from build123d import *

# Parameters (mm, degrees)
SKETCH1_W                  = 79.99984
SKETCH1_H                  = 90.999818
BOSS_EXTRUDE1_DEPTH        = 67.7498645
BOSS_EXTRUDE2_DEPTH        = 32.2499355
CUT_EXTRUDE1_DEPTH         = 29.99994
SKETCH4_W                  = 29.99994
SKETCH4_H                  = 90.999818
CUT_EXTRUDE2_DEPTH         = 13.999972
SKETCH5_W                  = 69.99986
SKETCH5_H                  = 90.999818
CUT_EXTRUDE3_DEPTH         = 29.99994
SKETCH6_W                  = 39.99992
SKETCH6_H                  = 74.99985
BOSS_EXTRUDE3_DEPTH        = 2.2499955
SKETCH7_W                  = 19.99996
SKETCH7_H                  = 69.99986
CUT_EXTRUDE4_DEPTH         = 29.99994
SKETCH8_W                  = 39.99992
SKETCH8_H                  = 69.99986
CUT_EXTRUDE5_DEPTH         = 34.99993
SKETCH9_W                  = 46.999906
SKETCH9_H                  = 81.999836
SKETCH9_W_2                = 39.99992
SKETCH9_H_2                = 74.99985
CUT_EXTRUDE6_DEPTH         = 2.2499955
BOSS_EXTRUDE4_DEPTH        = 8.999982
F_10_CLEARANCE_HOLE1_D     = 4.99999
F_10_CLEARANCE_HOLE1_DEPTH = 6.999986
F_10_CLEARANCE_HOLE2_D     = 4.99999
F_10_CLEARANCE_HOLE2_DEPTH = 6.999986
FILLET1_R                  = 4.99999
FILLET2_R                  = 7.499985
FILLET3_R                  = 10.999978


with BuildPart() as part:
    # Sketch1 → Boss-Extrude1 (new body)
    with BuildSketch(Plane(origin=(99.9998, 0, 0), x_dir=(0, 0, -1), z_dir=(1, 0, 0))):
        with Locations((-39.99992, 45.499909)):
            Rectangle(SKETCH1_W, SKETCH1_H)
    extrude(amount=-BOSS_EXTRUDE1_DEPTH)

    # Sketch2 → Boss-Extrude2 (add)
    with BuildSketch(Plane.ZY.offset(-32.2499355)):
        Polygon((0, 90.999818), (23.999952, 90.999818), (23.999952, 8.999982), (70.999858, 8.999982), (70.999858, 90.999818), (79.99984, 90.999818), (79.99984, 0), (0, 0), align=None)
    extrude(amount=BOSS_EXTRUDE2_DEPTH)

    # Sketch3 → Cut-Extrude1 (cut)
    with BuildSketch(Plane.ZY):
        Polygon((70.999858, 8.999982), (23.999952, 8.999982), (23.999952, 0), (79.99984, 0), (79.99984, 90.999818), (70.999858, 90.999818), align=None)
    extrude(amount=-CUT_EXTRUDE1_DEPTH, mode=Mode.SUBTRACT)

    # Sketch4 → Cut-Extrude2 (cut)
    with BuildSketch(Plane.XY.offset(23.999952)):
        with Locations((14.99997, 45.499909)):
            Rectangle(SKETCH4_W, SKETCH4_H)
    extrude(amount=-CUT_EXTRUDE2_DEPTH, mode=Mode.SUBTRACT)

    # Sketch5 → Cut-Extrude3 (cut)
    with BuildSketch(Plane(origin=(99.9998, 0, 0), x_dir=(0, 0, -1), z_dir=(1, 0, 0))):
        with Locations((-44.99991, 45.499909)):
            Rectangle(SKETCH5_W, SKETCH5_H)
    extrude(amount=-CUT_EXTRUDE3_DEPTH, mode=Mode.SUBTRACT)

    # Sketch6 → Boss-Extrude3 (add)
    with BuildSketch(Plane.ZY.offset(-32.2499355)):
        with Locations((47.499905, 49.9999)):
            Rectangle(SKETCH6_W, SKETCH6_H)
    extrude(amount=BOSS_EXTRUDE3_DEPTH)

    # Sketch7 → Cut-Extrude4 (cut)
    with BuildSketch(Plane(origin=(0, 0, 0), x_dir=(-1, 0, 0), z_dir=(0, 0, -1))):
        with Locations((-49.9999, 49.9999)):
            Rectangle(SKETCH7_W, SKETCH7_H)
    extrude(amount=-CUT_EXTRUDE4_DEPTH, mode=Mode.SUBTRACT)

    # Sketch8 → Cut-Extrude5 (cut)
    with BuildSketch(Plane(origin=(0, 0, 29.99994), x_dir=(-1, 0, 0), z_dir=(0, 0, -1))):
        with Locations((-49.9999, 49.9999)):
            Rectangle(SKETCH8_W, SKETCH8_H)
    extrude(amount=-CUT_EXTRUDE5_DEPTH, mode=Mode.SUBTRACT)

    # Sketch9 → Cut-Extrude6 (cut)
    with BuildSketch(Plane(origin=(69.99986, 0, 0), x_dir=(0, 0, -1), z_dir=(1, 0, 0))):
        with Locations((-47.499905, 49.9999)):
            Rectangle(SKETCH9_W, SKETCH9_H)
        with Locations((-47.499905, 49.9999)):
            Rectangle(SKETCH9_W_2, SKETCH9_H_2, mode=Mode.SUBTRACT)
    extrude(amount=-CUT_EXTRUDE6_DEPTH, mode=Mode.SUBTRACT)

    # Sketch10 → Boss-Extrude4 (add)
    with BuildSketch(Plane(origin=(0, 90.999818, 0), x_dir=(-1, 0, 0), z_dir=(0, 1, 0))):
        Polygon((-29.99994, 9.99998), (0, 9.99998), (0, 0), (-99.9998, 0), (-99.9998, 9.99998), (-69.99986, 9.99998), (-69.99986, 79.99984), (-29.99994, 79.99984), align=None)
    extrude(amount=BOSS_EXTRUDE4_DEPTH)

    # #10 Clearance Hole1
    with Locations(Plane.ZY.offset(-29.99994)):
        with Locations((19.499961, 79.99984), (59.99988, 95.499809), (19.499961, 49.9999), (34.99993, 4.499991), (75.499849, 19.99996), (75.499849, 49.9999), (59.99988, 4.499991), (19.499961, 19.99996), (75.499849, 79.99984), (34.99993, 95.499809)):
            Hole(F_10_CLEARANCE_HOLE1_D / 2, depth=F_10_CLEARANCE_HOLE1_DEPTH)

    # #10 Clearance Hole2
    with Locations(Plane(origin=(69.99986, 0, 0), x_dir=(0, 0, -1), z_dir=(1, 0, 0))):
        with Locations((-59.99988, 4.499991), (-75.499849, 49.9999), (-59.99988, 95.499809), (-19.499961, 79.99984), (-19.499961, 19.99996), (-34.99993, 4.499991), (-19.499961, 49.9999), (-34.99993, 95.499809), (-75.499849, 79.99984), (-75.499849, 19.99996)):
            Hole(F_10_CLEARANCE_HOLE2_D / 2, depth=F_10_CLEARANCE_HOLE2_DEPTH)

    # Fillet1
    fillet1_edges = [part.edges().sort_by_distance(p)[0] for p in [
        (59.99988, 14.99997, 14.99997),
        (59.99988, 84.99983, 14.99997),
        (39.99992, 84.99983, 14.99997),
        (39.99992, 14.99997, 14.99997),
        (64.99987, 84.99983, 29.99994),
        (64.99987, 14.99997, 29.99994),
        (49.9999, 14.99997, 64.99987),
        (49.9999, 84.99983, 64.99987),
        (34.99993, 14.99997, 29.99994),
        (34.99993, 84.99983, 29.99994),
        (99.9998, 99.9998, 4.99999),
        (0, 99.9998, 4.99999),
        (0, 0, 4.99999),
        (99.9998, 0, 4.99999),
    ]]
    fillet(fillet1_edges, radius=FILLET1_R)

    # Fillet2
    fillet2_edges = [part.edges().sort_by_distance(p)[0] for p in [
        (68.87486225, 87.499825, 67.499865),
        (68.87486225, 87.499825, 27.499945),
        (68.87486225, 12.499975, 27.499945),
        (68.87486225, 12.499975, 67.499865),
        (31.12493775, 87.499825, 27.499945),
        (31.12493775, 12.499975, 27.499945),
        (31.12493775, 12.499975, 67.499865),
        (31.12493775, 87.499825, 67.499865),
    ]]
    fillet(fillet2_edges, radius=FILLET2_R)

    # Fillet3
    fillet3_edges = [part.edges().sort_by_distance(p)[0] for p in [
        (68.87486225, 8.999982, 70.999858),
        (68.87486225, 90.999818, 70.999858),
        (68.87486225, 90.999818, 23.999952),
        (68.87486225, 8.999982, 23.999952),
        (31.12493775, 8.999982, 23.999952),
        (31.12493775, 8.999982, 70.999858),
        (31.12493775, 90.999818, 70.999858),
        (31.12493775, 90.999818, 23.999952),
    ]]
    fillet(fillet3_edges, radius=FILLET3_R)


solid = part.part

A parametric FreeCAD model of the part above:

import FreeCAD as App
import Part
import Sketcher
Q = App.Units.Quantity


def edges_at(feature, points):
    """Names of the edges that pass closest to the given points."""
    edges = feature.Shape.Edges
    near = lambda p: min(range(len(edges)), key=lambda i: edges[i].distToShape(Part.Vertex(*p))[0])
    return sorted({f"Edge{near(p) + 1}" for p in points})


def add_polygon(sketch, points):
    """Adds a closed chain of lines whose ends are joined by coincident constraints."""
    first, n = sketch.GeometryCount, len(points)
    for a, b in zip(points, points[1:] + points[:1]):
        sketch.addGeometry(Part.LineSegment(App.Vector(*a, 0), App.Vector(*b, 0)), False)
    for i in range(n):
        sketch.addConstraint(Sketcher.Constraint("Coincident", first + i, 2, first + (i + 1) % n, 1))

doc = App.newDocument("Part")
body = doc.addObject("PartDesign::Body", "Body")

# Sketch on YZ plane
sketch1 = doc.addObject("Sketcher::SketchObject", "Sketch")
body.addObject(sketch1)
sketch1.AttachmentSupport = (doc.YZ_Plane, [""])
sketch1.MapMode = "FlatFace"
sketch1.AttachmentOffset = App.Placement(App.Vector(0, 0, 3.937 * 25.4), App.Rotation())
add_polygon(sketch1, [(91, 80), (0, 80), (0, 0), (91, 0)])  # lines 0-3
sketch1.addConstraint(Sketcher.Constraint("Horizontal", 0))
sketch1.addConstraint(Sketcher.Constraint("Vertical", 1))
sketch1.addConstraint(Sketcher.Constraint("Horizontal", 2))
sketch1.addConstraint(Sketcher.Constraint("Vertical", 3))
sketch1.addConstraint(Sketcher.Constraint("Coincident", 1, 2, -1, 1))
sketch1.addConstraint(Sketcher.Constraint("DistanceY", 1, 2, 1, 1, Q("3.1496 in")))
sketch1.addConstraint(Sketcher.Constraint("DistanceX", 0, 2, 0, 1, Q("90.999818 mm")))
pad1 = doc.addObject("PartDesign::Pad", "Pad")
body.addObject(pad1)
pad1.Profile = sketch1
pad1.Length = 67.749865
pad1.Reversed = True

# Sketch on YZ plane
sketch2 = doc.addObject("Sketcher::SketchObject", "Sketch001")
body.addObject(sketch2)
sketch2.AttachmentSupport = (doc.YZ_Plane, [""])
sketch2.MapMode = "FlatFace"
sketch2.AttachmentOffset = App.Placement(App.Vector(0, 0, 32.249935), App.Rotation())
add_polygon(sketch2, [(91, 24), (91, 0), (0, 0), (0, 80), (91, 80), (91, 71), (9, 71), (9, 24)])  # lines 0-7
sketch2.addConstraint(Sketcher.Constraint("Vertical", 0))
sketch2.addConstraint(Sketcher.Constraint("Horizontal", 1))
sketch2.addConstraint(Sketcher.Constraint("Vertical", 2))
sketch2.addConstraint(Sketcher.Constraint("Horizontal", 3))
sketch2.addConstraint(Sketcher.Constraint("Vertical", 4))
sketch2.addConstraint(Sketcher.Constraint("Horizontal", 5))
sketch2.addConstraint(Sketcher.Constraint("Vertical", 6))
sketch2.addConstraint(Sketcher.Constraint("Horizontal", 7))
sketch2.addConstraint(Sketcher.Constraint("Coincident", 1, 2, -1, 1))
sketch2.addConstraint(Sketcher.Constraint("Vertical", 0, 2, 3, 2))
sketch2.addConstraint(Sketcher.Constraint("DistanceY", 2, 1, 2, 2, Q("3.1496 in")))
sketch2.addConstraint(Sketcher.Constraint("DistanceX", 1, 2, 1, 1, Q("90.999818 mm")))
sketch2.addConstraint(Sketcher.Constraint("DistanceX", 5, 2, 5, 1, Q("81.999836 mm")))
sketch2.addConstraint(Sketcher.Constraint("DistanceY", 0, 2, 0, 1, Q("23.999952 mm")))
sketch2.addConstraint(Sketcher.Constraint("DistanceY", 4, 2, 4, 1, Q("8.999982 mm")))
pad2 = doc.addObject("PartDesign::Pad", "Pad001")
body.addObject(pad2)
pad2.Profile = sketch2
pad2.Length = 32.249935
pad2.Reversed = True

# Sketch on YZ plane
sketch3 = doc.addObject("Sketcher::SketchObject", "Sketch002")
body.addObject(sketch3)
sketch3.AttachmentSupport = (doc.YZ_Plane, [""])
sketch3.MapMode = "FlatFace"
add_polygon(sketch3, [(8.999982, 70.999858), (8.999982, 23.999952), (0, 23.999952), (0, 79.99984), (90.999818, 79.99984), (90.999818, 70.999858)])  # lines 0-5
sketch3.addConstraint(Sketcher.Constraint("Vertical", 0))
sketch3.addConstraint(Sketcher.Constraint("Horizontal", 1))
sketch3.addConstraint(Sketcher.Constraint("Vertical", 2))
sketch3.addConstraint(Sketcher.Constraint("Horizontal", 3))
sketch3.addConstraint(Sketcher.Constraint("Vertical", 4))
sketch3.addConstraint(Sketcher.Constraint("Horizontal", 5))
sketch3.addConstraint(Sketcher.Constraint("PointOnObject", 1, 2, -2))
sketch3.addConstraint(Sketcher.Constraint("Equal", 1, 4))
sketch3.addConstraint(Sketcher.Constraint("DistanceY", -1, 1, 2, 2, Q("3.1496 in")))
sketch3.addConstraint(Sketcher.Constraint("DistanceX", 1, 2, 1, 1, Q("8.999982 mm")))
sketch3.addConstraint(Sketcher.Constraint("DistanceX", 3, 1, 3, 2, Q("90.999818 mm")))
sketch3.addConstraint(Sketcher.Constraint("DistanceY", 2, 1, 2, 2, Q("55.999888 mm")))
pocket1 = doc.addObject("PartDesign::Pocket", "Pocket")
body.addObject(pocket1)
pocket1.Profile = sketch3
pocket1.Length = Q("1.1811 in")
pocket1.Reversed = True

# Sketch on XY plane
sketch4 = doc.addObject("Sketcher::SketchObject", "Sketch003")
body.addObject(sketch4)
sketch4.AttachmentSupport = (doc.XY_Plane, [""])
sketch4.MapMode = "FlatFace"
sketch4.AttachmentOffset = App.Placement(App.Vector(0, 0, 23.999952), App.Rotation())
add_polygon(sketch4, [(0, 91), (0, 0), (30, 0), (30, 91)])  # lines 0-3
sketch4.addConstraint(Sketcher.Constraint("Vertical", 0))
sketch4.addConstraint(Sketcher.Constraint("Horizontal", 1))
sketch4.addConstraint(Sketcher.Constraint("Vertical", 2))
sketch4.addConstraint(Sketcher.Constraint("Horizontal", 3))
sketch4.addConstraint(Sketcher.Constraint("Coincident", 0, 2, -1, 1))
sketch4.addConstraint(Sketcher.Constraint("DistanceX", 1, 1, 1, 2, Q("1.1811 in")))
sketch4.addConstraint(Sketcher.Constraint("DistanceY", 0, 2, 0, 1, Q("90.999818 mm")))
pocket2 = doc.addObject("PartDesign::Pocket", "Pocket001")
body.addObject(pocket2)
pocket2.Profile = sketch4
pocket2.Length = 13.999972

# Sketch on YZ plane
sketch5 = doc.addObject("Sketcher::SketchObject", "Sketch004")
body.addObject(sketch5)
sketch5.AttachmentSupport = (doc.YZ_Plane, [""])
sketch5.MapMode = "FlatFace"
sketch5.AttachmentOffset = App.Placement(App.Vector(0, 0, 3.937 * 25.4), App.Rotation())
add_polygon(sketch5, [(91, 80), (0, 80), (0, 10), (91, 10)])  # lines 0-3
sketch5.addConstraint(Sketcher.Constraint("Horizontal", 0))
sketch5.addConstraint(Sketcher.Constraint("Vertical", 1))
sketch5.addConstraint(Sketcher.Constraint("Horizontal", 2))
sketch5.addConstraint(Sketcher.Constraint("Vertical", 3))
sketch5.addConstraint(Sketcher.Constraint("PointOnObject", 0, 2, -2))
sketch5.addConstraint(Sketcher.Constraint("DistanceY", 1, 2, 1, 1, Q("2.7559 in")))
sketch5.addConstraint(Sketcher.Constraint("DistanceY", -1, 1, 0, 2, Q("3.1496 in")))
sketch5.addConstraint(Sketcher.Constraint("DistanceX", 0, 2, 0, 1, Q("90.999818 mm")))
pocket3 = doc.addObject("PartDesign::Pocket", "Pocket002")
body.addObject(pocket3)
pocket3.Profile = sketch5
pocket3.Length = Q("1.1811 in")

# Sketch on YZ plane
sketch6 = doc.addObject("Sketcher::SketchObject", "Sketch005")
body.addObject(sketch6)
sketch6.AttachmentSupport = (doc.YZ_Plane, [""])
sketch6.MapMode = "FlatFace"
sketch6.AttachmentOffset = App.Placement(App.Vector(0, 0, 32.249935), App.Rotation())
add_polygon(sketch6, [(87, 27), (12, 27), (12, 67), (87, 67)])  # lines 0-3
sketch6.addConstraint(Sketcher.Constraint("Horizontal", 0))
sketch6.addConstraint(Sketcher.Constraint("Vertical", 1))
sketch6.addConstraint(Sketcher.Constraint("Horizontal", 2))
sketch6.addConstraint(Sketcher.Constraint("Vertical", 3))
sketch6.addConstraint(Sketcher.Constraint("DistanceY", 1, 1, 1, 2, Q("1.5748 in")))
sketch6.addConstraint(Sketcher.Constraint("DistanceX", 0, 2, 0, 1, Q("74.99985 mm")))
sketch6.addConstraint(Sketcher.Constraint("DistanceX", -1, 1, 0, 2, Q("12.499975 mm")))
sketch6.addConstraint(Sketcher.Constraint("DistanceY", -1, 1, 0, 2, Q("27.499945 mm")))
pad3 = doc.addObject("PartDesign::Pad", "Pad002")
body.addObject(pad3)
pad3.Profile = sketch6
pad3.Length = 2.249995
pad3.Reversed = True

# Sketch on XY plane
sketch7 = doc.addObject("Sketcher::SketchObject", "Sketch006")
body.addObject(sketch7)
sketch7.AttachmentSupport = (doc.XY_Plane, [""])
sketch7.MapMode = "FlatFace"
add_polygon(sketch7, [(60, 85), (60, 15), (40, 15), (40, 85)])  # lines 0-3
sketch7.addConstraint(Sketcher.Constraint("Vertical", 0))
sketch7.addConstraint(Sketcher.Constraint("Horizontal", 1))
sketch7.addConstraint(Sketcher.Constraint("Vertical", 2))
sketch7.addConstraint(Sketcher.Constraint("Horizontal", 3))
sketch7.addConstraint(Sketcher.Constraint("DistanceX", 1, 2, 1, 1, Q("0.7874 in")))
sketch7.addConstraint(Sketcher.Constraint("DistanceY", 0, 2, 0, 1, Q("2.7559 in")))
sketch7.addConstraint(Sketcher.Constraint("DistanceX", -1, 1, 0, 2, Q("2.3622 in")))
sketch7.addConstraint(Sketcher.Constraint("DistanceY", -1, 1, 0, 2, Q("14.99997 mm")))
pocket4 = doc.addObject("PartDesign::Pocket", "Pocket003")
body.addObject(pocket4)
pocket4.Profile = sketch7
pocket4.Length = Q("1.1811 in")
pocket4.Reversed = True

# Sketch on XY plane
sketch8 = doc.addObject("Sketcher::SketchObject", "Sketch007")
body.addObject(sketch8)
sketch8.AttachmentSupport = (doc.XY_Plane, [""])
sketch8.MapMode = "FlatFace"
sketch8.AttachmentOffset = App.Placement(App.Vector(0, 0, 1.1811 * 25.4), App.Rotation())
add_polygon(sketch8, [(70, 85), (70, 15), (30, 15), (30, 85)])  # lines 0-3
sketch8.addConstraint(Sketcher.Constraint("Vertical", 0))
sketch8.addConstraint(Sketcher.Constraint("Horizontal", 1))
sketch8.addConstraint(Sketcher.Constraint("Vertical", 2))
sketch8.addConstraint(Sketcher.Constraint("Horizontal", 3))
sketch8.addConstraint(Sketcher.Constraint("DistanceX", 1, 2, 1, 1, Q("1.5748 in")))
sketch8.addConstraint(Sketcher.Constraint("DistanceY", 0, 2, 0, 1, Q("2.7559 in")))
sketch8.addConstraint(Sketcher.Constraint("DistanceX", -1, 1, 0, 2, Q("2.7559 in")))
sketch8.addConstraint(Sketcher.Constraint("DistanceY", -1, 1, 0, 2, Q("14.99997 mm")))
pocket5 = doc.addObject("PartDesign::Pocket", "Pocket004")
body.addObject(pocket5)
pocket5.Profile = sketch8
pocket5.Length = 34.99993
pocket5.Reversed = True

# Sketch on YZ plane
sketch9 = doc.addObject("Sketcher::SketchObject", "Sketch008")
body.addObject(sketch9)
sketch9.AttachmentSupport = (doc.YZ_Plane, [""])
sketch9.MapMode = "FlatFace"
sketch9.AttachmentOffset = App.Placement(App.Vector(0, 0, 2.7559 * 25.4), App.Rotation())
add_polygon(sketch9, [(91, 71), (9, 71), (9, 24), (91, 24)])  # lines 0-3
add_polygon(sketch9, [(12, 27), (12, 67), (87, 67), (87, 27)])  # lines 4-7
sketch9.addConstraint(Sketcher.Constraint("Horizontal", 0))
sketch9.addConstraint(Sketcher.Constraint("Vertical", 1))
sketch9.addConstraint(Sketcher.Constraint("Horizontal", 2))
sketch9.addConstraint(Sketcher.Constraint("Vertical", 3))
sketch9.addConstraint(Sketcher.Constraint("Vertical", 4))
sketch9.addConstraint(Sketcher.Constraint("Horizontal", 5))
sketch9.addConstraint(Sketcher.Constraint("Vertical", 6))
sketch9.addConstraint(Sketcher.Constraint("Horizontal", 7))
sketch9.addConstraint(Sketcher.Constraint("DistanceY", 4, 1, 4, 2, Q("1.5748 in")))
sketch9.addConstraint(Sketcher.Constraint("DistanceX", 5, 1, 5, 2, Q("74.99985 mm")))
sketch9.addConstraint(Sketcher.Constraint("DistanceX", 0, 2, 0, 1, Q("81.999836 mm")))
sketch9.addConstraint(Sketcher.Constraint("DistanceY", 1, 2, 1, 1, Q("46.999906 mm")))
sketch9.addConstraint(Sketcher.Constraint("DistanceX", -1, 1, 0, 2, Q("8.999982 mm")))
sketch9.addConstraint(Sketcher.Constraint("DistanceY", -1, 1, 0, 2, Q("70.999858 mm")))
sketch9.addConstraint(Sketcher.Constraint("DistanceX", -1, 1, 4, 2, Q("12.499975 mm")))
sketch9.addConstraint(Sketcher.Constraint("DistanceY", -1, 1, 4, 2, Q("67.499865 mm")))
pocket6 = doc.addObject("PartDesign::Pocket", "Pocket005")
body.addObject(pocket6)
pocket6.Profile = sketch9
pocket6.Length = 2.249995

# Sketch on XZ plane
sketch10 = doc.addObject("Sketcher::SketchObject", "Sketch009")
body.addObject(sketch10)
sketch10.AttachmentSupport = (doc.XZ_Plane, [""])
sketch10.MapMode = "FlatFace"
sketch10.AttachmentOffset = App.Placement(App.Vector(0, 0, -90.999818), App.Rotation())
add_polygon(sketch10, [(0, 10), (30, 10), (30, 80), (70, 80), (70, 10), (100, 10), (100, 0), (0, 0)])  # lines 0-7
sketch10.addConstraint(Sketcher.Constraint("Horizontal", 0))
sketch10.addConstraint(Sketcher.Constraint("Vertical", 1))
sketch10.addConstraint(Sketcher.Constraint("Horizontal", 2))
sketch10.addConstraint(Sketcher.Constraint("Vertical", 3))
sketch10.addConstraint(Sketcher.Constraint("Horizontal", 4))
sketch10.addConstraint(Sketcher.Constraint("Vertical", 5))
sketch10.addConstraint(Sketcher.Constraint("Horizontal", 6))
sketch10.addConstraint(Sketcher.Constraint("Vertical", 7))
sketch10.addConstraint(Sketcher.Constraint("Coincident", 6, 2, -1, 1))
sketch10.addConstraint(Sketcher.Constraint("Horizontal", 0, 2, 3, 2))
sketch10.addConstraint(Sketcher.Constraint("Equal", 0, 4))
sketch10.addConstraint(Sketcher.Constraint("DistanceX", 6, 2, 6, 1, Q("3.937 in")))
sketch10.addConstraint(Sketcher.Constraint("DistanceX", 0, 1, 0, 2, Q("1.1811 in")))
sketch10.addConstraint(Sketcher.Constraint("DistanceY", 1, 1, 1, 2, Q("2.7559 in")))
sketch10.addConstraint(Sketcher.Constraint("DistanceY", 5, 2, 5, 1, Q("0.3937 in")))
pad4 = doc.addObject("PartDesign::Pad", "Pad003")
body.addObject(pad4)
pad4.Profile = sketch10
pad4.Length = 8.999982
pad4.Reversed = True

# Sketch on YZ plane
sketch11 = doc.addObject("Sketcher::SketchObject", "Sketch010")
body.addObject(sketch11)
sketch11.AttachmentSupport = (doc.YZ_Plane, [""])
sketch11.MapMode = "FlatFace"
sketch11.AttachmentOffset = App.Placement(App.Vector(0, 0, 1.1811 * 25.4), App.Rotation())
sketch11.addGeometry(Part.Circle(App.Vector(80, 19.5, 0), App.Vector(0, 0, 1), 2.5), False)
sketch11.addGeometry(Part.Circle(App.Vector(95.5, 60, 0), App.Vector(0, 0, 1), 2.5), False)
sketch11.addGeometry(Part.Circle(App.Vector(50, 19.5, 0), App.Vector(0, 0, 1), 2.5), False)
sketch11.addGeometry(Part.Circle(App.Vector(4.5, 35, 0), App.Vector(0, 0, 1), 2.5), False)
sketch11.addGeometry(Part.Circle(App.Vector(20, 75.5, 0), App.Vector(0, 0, 1), 2.5), False)
sketch11.addGeometry(Part.Circle(App.Vector(50, 75.5, 0), App.Vector(0, 0, 1), 2.5), False)
sketch11.addGeometry(Part.Circle(App.Vector(4.5, 60, 0), App.Vector(0, 0, 1), 2.5), False)
sketch11.addGeometry(Part.Circle(App.Vector(20, 19.5, 0), App.Vector(0, 0, 1), 2.5), False)
sketch11.addGeometry(Part.Circle(App.Vector(80, 75.5, 0), App.Vector(0, 0, 1), 2.5), False)
sketch11.addGeometry(Part.Circle(App.Vector(95.5, 35, 0), App.Vector(0, 0, 1), 2.5), False)
sketch11.addConstraint(Sketcher.Constraint("Equal", 0, 1))
sketch11.addConstraint(Sketcher.Constraint("Equal", 1, 2))
sketch11.addConstraint(Sketcher.Constraint("Equal", 2, 3))
sketch11.addConstraint(Sketcher.Constraint("Equal", 3, 4))
sketch11.addConstraint(Sketcher.Constraint("Equal", 4, 5))
sketch11.addConstraint(Sketcher.Constraint("Equal", 5, 6))
sketch11.addConstraint(Sketcher.Constraint("Equal", 6, 7))
sketch11.addConstraint(Sketcher.Constraint("Equal", 7, 8))
sketch11.addConstraint(Sketcher.Constraint("Equal", 8, 9))
sketch11.addConstraint(Sketcher.Constraint("Horizontal", 0, 3, 2, 3))
sketch11.addConstraint(Sketcher.Constraint("Horizontal", 4, 3, 5, 3))
sketch11.addConstraint(Sketcher.Constraint("Horizontal", 1, 3, 6, 3))
sketch11.addConstraint(Sketcher.Constraint("Horizontal", 2, 3, 7, 3))
sketch11.addConstraint(Sketcher.Constraint("Horizontal", 5, 3, 8, 3))
sketch11.addConstraint(Sketcher.Constraint("Horizontal", 3, 3, 9, 3))
sketch11.addConstraint(Sketcher.Constraint("Vertical", 2, 3, 5, 3))
sketch11.addConstraint(Sketcher.Constraint("Vertical", 3, 3, 6, 3))
sketch11.addConstraint(Sketcher.Constraint("Vertical", 4, 3, 7, 3))
sketch11.addConstraint(Sketcher.Constraint("Vertical", 0, 3, 8, 3))
sketch11.addConstraint(Sketcher.Constraint("Vertical", 1, 3, 9, 3))
sketch11.addConstraint(Sketcher.Constraint("Diameter", 0, Q("4.99999 mm")))
sketch11.addConstraint(Sketcher.Constraint("DistanceX", -1, 1, 0, 3, Q("3.1496 in")))
sketch11.addConstraint(Sketcher.Constraint("DistanceY", -1, 1, 1, 3, Q("2.3622 in")))
sketch11.addConstraint(Sketcher.Constraint("DistanceX", -1, 1, 2, 3, Q("1.9685 in")))
sketch11.addConstraint(Sketcher.Constraint("DistanceX", -1, 1, 4, 3, Q("0.7874 in")))
sketch11.addConstraint(Sketcher.Constraint("DistanceY", -1, 1, 0, 3, Q("19.499961 mm")))
sketch11.addConstraint(Sketcher.Constraint("DistanceX", -1, 1, 1, 3, Q("95.499809 mm")))
sketch11.addConstraint(Sketcher.Constraint("DistanceX", -1, 1, 3, 3, Q("4.499991 mm")))
sketch11.addConstraint(Sketcher.Constraint("DistanceY", -1, 1, 3, 3, Q("34.99993 mm")))
sketch11.addConstraint(Sketcher.Constraint("DistanceY", -1, 1, 4, 3, Q("75.499849 mm")))
doc.recompute()
hole = doc.addObject("PartDesign::Hole", "Hole")
body.addObject(hole)
hole.Profile = sketch11
hole.ThreadType = "None"
hole.Diameter = 4.99999
hole.DepthType = "Dimension"
hole.Depth = 6.999986
hole.DrillPoint = "Flat"
hole.Reversed = True

# Sketch on YZ plane
sketch12 = doc.addObject("Sketcher::SketchObject", "Sketch011")
body.addObject(sketch12)
sketch12.AttachmentSupport = (doc.YZ_Plane, [""])
sketch12.MapMode = "FlatFace"
sketch12.AttachmentOffset = App.Placement(App.Vector(0, 0, 2.7559 * 25.4), App.Rotation())
sketch12.addGeometry(Part.Circle(App.Vector(4.5, 60, 0), App.Vector(0, 0, 1), 2.5), False)
sketch12.addGeometry(Part.Circle(App.Vector(50, 75.5, 0), App.Vector(0, 0, 1), 2.5), False)
sketch12.addGeometry(Part.Circle(App.Vector(95.5, 60, 0), App.Vector(0, 0, 1), 2.5), False)
sketch12.addGeometry(Part.Circle(App.Vector(80, 19.5, 0), App.Vector(0, 0, 1), 2.5), False)
sketch12.addGeometry(Part.Circle(App.Vector(20, 19.5, 0), App.Vector(0, 0, 1), 2.5), False)
sketch12.addGeometry(Part.Circle(App.Vector(4.5, 35, 0), App.Vector(0, 0, 1), 2.5), False)
sketch12.addGeometry(Part.Circle(App.Vector(50, 19.5, 0), App.Vector(0, 0, 1), 2.5), False)
sketch12.addGeometry(Part.Circle(App.Vector(95.5, 35, 0), App.Vector(0, 0, 1), 2.5), False)
sketch12.addGeometry(Part.Circle(App.Vector(80, 75.5, 0), App.Vector(0, 0, 1), 2.5), False)
sketch12.addGeometry(Part.Circle(App.Vector(20, 75.5, 0), App.Vector(0, 0, 1), 2.5), False)
sketch12.addConstraint(Sketcher.Constraint("Equal", 0, 1))
sketch12.addConstraint(Sketcher.Constraint("Equal", 1, 2))
sketch12.addConstraint(Sketcher.Constraint("Equal", 2, 3))
sketch12.addConstraint(Sketcher.Constraint("Equal", 3, 4))
sketch12.addConstraint(Sketcher.Constraint("Equal", 4, 5))
sketch12.addConstraint(Sketcher.Constraint("Equal", 5, 6))
sketch12.addConstraint(Sketcher.Constraint("Equal", 6, 7))
sketch12.addConstraint(Sketcher.Constraint("Equal", 7, 8))
sketch12.addConstraint(Sketcher.Constraint("Equal", 8, 9))
sketch12.addConstraint(Sketcher.Constraint("Horizontal", 0, 3, 2, 3))
sketch12.addConstraint(Sketcher.Constraint("Horizontal", 3, 3, 4, 3))
sketch12.addConstraint(Sketcher.Constraint("Horizontal", 4, 3, 6, 3))
sketch12.addConstraint(Sketcher.Constraint("Horizontal", 5, 3, 7, 3))
sketch12.addConstraint(Sketcher.Constraint("Horizontal", 1, 3, 8, 3))
sketch12.addConstraint(Sketcher.Constraint("Horizontal", 8, 3, 9, 3))
sketch12.addConstraint(Sketcher.Constraint("Vertical", 0, 3, 5, 3))
sketch12.addConstraint(Sketcher.Constraint("Vertical", 1, 3, 6, 3))
sketch12.addConstraint(Sketcher.Constraint("Vertical", 2, 3, 7, 3))
sketch12.addConstraint(Sketcher.Constraint("Vertical", 3, 3, 8, 3))
sketch12.addConstraint(Sketcher.Constraint("Vertical", 4, 3, 9, 3))
sketch12.addConstraint(Sketcher.Constraint("Diameter", 0, Q("4.99999 mm")))
sketch12.addConstraint(Sketcher.Constraint("DistanceY", -1, 1, 0, 3, Q("2.3622 in")))
sketch12.addConstraint(Sketcher.Constraint("DistanceX", -1, 1, 1, 3, Q("1.9685 in")))
sketch12.addConstraint(Sketcher.Constraint("DistanceX", -1, 1, 3, 3, Q("3.1496 in")))
sketch12.addConstraint(Sketcher.Constraint("DistanceX", -1, 1, 4, 3, Q("0.7874 in")))
sketch12.addConstraint(Sketcher.Constraint("DistanceX", -1, 1, 0, 3, Q("4.499991 mm")))
sketch12.addConstraint(Sketcher.Constraint("DistanceY", -1, 1, 1, 3, Q("75.499849 mm")))
sketch12.addConstraint(Sketcher.Constraint("DistanceX", -1, 1, 2, 3, Q("95.499809 mm")))
sketch12.addConstraint(Sketcher.Constraint("DistanceY", -1, 1, 3, 3, Q("19.499961 mm")))
sketch12.addConstraint(Sketcher.Constraint("DistanceY", -1, 1, 5, 3, Q("34.99993 mm")))
doc.recompute()
hole2 = doc.addObject("PartDesign::Hole", "Hole001")
body.addObject(hole2)
hole2.Profile = sketch12
hole2.ThreadType = "None"
hole2.Diameter = 4.99999
hole2.DepthType = "Dimension"
hole2.Depth = 6.999986
hole2.DrillPoint = "Flat"
doc.recompute()

fillet = doc.addObject("PartDesign::Fillet", "Fillet")
body.addObject(fillet)
fillet.Base = (hole2, edges_at(hole2, [
    (60, 15, 15),
    (60, 85, 15),
    (40, 85, 15),
    (40, 15, 15),
    (65, 85, 30),
    (65, 15, 30),
    (50, 15, 65),
    (50, 85, 65),
    (35, 15, 30),
    (35, 85, 30),
    (100, 100, 5),
    (0, 100, 5),
    (0, 0, 5),
    (100, 0, 5),
]))
fillet.Radius = 4.99999
doc.recompute()

fillet2 = doc.addObject("PartDesign::Fillet", "Fillet001")
body.addObject(fillet2)
fillet2.Base = (fillet, edges_at(fillet, [
    (68.875, 87.5, 67.5),
    (68.875, 87.5, 27.5),
    (68.875, 12.5, 27.5),
    (68.875, 12.5, 67.5),
    (31.125, 87.5, 27.5),
    (31.125, 12.5, 27.5),
    (31.125, 12.5, 67.5),
    (31.125, 87.5, 67.5),
]))
fillet2.Radius = 7.499985
doc.recompute()

fillet3 = doc.addObject("PartDesign::Fillet", "Fillet002")
body.addObject(fillet3)
fillet3.Base = (fillet2, edges_at(fillet2, [
    (68.875, 9, 71),
    (68.875, 91, 71),
    (68.875, 91, 24),
    (68.875, 9, 24),
    (31.125, 9, 24),
    (31.125, 9, 71),
    (31.125, 91, 71),
    (31.125, 91, 24),
]))
fillet3.Radius = 10.999978

doc.recompute()
